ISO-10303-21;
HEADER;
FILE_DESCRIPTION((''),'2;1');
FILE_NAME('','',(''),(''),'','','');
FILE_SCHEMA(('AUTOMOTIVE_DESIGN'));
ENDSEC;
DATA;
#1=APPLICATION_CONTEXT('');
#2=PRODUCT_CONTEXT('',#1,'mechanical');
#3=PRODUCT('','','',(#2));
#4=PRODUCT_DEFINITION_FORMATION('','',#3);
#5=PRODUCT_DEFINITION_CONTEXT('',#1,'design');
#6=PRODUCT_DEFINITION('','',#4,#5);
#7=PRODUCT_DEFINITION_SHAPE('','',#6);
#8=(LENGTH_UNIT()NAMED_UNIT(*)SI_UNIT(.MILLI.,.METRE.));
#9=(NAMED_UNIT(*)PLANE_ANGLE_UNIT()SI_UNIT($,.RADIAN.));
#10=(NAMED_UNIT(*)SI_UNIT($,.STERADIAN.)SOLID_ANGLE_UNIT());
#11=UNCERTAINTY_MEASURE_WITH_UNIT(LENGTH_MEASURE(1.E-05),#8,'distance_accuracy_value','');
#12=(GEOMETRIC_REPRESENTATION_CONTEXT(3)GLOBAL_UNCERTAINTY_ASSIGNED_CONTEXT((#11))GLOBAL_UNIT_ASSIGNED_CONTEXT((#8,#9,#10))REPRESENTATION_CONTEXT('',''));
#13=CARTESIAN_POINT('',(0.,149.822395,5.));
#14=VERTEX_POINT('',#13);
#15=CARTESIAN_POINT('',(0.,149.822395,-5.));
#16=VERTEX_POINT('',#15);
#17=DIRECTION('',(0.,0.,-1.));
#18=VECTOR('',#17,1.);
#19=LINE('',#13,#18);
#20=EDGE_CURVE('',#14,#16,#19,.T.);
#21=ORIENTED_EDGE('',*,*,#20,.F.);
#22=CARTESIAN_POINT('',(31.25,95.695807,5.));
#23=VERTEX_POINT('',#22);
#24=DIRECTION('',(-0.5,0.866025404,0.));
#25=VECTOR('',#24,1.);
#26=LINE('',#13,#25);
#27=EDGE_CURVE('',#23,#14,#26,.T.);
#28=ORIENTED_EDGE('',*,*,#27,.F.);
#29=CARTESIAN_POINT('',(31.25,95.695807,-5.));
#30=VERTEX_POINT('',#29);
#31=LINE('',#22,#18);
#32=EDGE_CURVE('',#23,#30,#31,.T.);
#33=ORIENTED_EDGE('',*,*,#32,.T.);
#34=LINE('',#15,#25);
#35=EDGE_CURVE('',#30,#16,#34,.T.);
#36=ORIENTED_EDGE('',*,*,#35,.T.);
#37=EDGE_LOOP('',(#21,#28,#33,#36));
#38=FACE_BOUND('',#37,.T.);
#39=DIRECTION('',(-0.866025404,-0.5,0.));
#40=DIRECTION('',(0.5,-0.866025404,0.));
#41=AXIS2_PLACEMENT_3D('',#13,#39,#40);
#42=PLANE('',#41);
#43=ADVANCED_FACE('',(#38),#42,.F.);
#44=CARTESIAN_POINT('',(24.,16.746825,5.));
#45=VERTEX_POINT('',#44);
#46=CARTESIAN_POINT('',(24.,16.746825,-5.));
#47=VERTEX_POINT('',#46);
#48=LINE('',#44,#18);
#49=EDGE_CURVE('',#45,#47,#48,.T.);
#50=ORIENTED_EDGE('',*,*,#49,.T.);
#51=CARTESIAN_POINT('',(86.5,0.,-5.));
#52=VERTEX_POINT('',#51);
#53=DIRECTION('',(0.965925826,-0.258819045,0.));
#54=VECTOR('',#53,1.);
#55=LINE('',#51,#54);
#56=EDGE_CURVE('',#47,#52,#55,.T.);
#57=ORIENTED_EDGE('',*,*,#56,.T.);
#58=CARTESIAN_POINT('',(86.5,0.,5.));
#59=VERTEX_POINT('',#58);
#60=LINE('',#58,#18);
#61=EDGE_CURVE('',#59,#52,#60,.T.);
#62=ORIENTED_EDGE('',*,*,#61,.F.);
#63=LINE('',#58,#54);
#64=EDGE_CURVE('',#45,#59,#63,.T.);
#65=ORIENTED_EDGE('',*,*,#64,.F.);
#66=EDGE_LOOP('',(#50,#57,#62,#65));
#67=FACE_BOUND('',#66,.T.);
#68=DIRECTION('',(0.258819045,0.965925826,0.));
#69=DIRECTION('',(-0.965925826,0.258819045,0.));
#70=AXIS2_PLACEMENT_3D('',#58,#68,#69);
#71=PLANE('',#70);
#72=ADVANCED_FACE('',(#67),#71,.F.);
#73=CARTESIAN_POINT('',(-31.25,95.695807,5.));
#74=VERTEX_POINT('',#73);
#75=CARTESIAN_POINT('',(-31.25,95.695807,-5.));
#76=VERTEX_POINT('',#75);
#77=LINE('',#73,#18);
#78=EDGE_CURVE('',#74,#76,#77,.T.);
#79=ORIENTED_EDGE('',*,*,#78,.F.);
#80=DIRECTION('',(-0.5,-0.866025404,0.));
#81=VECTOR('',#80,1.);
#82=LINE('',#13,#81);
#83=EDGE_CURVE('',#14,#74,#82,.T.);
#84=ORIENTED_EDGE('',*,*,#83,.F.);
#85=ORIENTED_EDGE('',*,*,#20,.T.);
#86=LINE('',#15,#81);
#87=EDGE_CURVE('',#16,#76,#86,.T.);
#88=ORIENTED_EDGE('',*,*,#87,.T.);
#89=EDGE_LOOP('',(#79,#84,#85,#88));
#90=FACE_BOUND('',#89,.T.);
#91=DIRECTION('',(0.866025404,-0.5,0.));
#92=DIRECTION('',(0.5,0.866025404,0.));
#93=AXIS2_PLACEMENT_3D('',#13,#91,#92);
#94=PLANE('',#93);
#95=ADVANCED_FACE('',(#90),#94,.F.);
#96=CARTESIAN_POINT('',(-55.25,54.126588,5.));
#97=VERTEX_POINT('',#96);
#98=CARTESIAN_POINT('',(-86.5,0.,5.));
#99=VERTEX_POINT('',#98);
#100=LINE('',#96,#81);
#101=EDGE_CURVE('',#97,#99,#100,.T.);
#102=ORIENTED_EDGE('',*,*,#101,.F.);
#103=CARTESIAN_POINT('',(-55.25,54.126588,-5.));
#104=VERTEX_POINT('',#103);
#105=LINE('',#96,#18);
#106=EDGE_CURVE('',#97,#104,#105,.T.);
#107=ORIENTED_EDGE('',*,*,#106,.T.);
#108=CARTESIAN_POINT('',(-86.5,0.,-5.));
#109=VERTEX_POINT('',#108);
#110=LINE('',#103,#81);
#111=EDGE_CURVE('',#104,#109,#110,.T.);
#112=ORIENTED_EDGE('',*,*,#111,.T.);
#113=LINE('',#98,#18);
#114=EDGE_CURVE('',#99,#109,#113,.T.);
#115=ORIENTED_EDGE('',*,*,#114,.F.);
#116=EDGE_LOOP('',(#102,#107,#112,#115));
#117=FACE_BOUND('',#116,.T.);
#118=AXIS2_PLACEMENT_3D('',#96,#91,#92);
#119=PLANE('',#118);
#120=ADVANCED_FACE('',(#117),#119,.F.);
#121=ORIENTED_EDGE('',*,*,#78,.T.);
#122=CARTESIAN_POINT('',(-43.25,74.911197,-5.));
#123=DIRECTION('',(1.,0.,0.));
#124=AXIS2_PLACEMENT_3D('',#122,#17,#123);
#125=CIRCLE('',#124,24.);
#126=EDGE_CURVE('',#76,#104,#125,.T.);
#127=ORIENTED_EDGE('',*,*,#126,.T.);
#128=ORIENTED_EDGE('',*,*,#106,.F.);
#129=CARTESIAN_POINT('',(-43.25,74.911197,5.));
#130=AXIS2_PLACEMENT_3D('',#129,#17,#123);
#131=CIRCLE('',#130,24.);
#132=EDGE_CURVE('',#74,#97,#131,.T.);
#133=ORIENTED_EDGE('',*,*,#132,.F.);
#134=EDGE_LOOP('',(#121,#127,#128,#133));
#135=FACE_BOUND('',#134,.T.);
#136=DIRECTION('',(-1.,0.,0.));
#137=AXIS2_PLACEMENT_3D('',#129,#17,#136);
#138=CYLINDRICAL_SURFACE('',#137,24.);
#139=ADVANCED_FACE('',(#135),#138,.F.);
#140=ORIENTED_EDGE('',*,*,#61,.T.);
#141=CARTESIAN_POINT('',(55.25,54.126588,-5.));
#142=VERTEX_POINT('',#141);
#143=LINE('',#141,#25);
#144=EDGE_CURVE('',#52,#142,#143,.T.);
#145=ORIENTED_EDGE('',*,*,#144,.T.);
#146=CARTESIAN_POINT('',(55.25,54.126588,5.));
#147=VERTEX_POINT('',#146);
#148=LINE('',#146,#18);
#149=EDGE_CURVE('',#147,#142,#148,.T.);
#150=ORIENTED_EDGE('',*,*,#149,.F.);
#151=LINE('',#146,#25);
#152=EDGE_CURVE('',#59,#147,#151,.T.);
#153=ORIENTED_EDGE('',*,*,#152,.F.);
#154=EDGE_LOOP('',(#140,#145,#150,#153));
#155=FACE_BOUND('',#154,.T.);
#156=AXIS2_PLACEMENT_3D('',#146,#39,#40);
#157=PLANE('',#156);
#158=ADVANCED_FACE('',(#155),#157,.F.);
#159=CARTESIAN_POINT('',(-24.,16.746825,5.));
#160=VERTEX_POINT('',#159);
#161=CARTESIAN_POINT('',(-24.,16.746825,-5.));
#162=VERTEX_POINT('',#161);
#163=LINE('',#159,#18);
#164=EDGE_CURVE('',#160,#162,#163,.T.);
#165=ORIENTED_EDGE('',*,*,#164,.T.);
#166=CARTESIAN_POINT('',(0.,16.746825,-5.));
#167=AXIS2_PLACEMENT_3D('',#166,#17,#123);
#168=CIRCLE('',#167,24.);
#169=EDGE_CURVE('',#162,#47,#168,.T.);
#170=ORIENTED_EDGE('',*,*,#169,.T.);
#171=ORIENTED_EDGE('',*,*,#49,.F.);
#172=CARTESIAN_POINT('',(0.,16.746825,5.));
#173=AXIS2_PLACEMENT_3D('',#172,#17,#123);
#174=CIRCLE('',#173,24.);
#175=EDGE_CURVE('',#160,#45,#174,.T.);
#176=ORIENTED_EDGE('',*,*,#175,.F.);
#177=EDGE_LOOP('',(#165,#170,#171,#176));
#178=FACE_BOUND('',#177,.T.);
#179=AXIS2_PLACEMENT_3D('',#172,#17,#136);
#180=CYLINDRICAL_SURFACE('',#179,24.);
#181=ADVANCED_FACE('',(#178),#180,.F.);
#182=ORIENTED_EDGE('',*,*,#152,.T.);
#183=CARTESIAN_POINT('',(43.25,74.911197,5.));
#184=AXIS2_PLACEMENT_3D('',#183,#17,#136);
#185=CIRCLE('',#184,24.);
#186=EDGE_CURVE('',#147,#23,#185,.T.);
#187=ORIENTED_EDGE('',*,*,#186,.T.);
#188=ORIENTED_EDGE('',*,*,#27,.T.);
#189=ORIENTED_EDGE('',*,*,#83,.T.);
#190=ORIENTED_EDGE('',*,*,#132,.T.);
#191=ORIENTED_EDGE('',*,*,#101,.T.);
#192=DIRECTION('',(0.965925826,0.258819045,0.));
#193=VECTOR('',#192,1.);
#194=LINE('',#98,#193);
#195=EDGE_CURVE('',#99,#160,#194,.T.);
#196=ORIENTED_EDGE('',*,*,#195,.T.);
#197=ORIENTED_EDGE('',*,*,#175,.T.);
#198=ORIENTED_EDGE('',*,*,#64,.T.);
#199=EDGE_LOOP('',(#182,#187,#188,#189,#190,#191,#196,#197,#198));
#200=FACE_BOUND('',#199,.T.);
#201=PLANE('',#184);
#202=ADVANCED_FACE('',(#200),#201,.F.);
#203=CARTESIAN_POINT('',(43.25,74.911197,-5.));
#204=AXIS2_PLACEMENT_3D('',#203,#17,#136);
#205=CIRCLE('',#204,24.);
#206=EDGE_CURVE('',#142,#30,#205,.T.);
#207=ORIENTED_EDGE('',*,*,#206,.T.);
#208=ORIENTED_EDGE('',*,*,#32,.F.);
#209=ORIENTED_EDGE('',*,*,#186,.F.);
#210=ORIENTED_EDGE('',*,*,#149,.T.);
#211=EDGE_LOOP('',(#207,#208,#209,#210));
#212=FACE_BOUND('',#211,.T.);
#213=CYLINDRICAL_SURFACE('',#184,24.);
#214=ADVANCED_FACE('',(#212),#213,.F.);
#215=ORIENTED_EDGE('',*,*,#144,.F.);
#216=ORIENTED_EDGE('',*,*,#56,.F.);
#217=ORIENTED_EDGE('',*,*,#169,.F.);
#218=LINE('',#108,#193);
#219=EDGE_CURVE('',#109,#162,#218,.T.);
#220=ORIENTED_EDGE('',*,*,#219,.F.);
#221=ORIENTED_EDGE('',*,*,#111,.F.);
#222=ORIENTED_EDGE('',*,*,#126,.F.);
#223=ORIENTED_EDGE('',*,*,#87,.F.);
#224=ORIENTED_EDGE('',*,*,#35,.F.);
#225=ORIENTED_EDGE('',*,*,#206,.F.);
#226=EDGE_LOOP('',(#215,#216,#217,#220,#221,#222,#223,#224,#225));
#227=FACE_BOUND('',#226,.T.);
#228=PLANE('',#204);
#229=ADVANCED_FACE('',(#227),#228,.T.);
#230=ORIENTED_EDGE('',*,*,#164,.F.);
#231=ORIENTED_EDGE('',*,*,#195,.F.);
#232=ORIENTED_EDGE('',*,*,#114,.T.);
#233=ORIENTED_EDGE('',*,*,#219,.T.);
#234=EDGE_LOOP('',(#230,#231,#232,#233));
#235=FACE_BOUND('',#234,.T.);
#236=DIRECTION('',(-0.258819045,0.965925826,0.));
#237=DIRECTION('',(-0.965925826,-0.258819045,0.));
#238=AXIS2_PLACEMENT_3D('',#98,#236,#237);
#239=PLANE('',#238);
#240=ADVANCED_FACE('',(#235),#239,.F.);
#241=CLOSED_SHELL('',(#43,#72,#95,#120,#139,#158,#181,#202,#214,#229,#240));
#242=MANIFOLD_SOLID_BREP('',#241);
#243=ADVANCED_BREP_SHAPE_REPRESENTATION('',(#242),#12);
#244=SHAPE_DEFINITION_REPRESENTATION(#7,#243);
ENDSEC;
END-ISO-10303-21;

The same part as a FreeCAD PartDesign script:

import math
import FreeCAD as App
import Part
import Sketcher

V = App.Vector
Q = App.Units.Quantity

doc = App.newDocument("Part")
body = doc.addObject("PartDesign::Body", "Body")

# Sketch on XY plane
sketch1 = doc.addObject("Sketcher::SketchObject", "Sketch")
body.addObject(sketch1)
sketch1.AttachmentSupport = (doc.XY_Plane, [""])
sketch1.MapMode = "FlatFace"
sketch1.addGeometry([
    Part.LineSegment(V(0, 150, 0), V(-31, 96, 0)),  # 0
    Part.ArcOfCircle(Part.Circle(V(-43, 75, 0), V(0, 0, 1), 24), math.radians(-120), math.radians(60)),  # 1
    Part.LineSegment(V(-55, 54, 0), V(-86, 0, 0)),  # 2
    Part.LineSegment(V(-86, 0, 0), V(-24, 17, 0)),  # 3
    Part.ArcOfCircle(Part.Circle(V(0, 17, 0), V(0, 0, 1), 24), math.radians(0), math.radians(180)),  # 4
    Part.LineSegment(V(24, 17, 0), V(86, 0, 0)),  # 5
    Part.LineSegment(V(86, 0, 0), V(55, 54, 0)),  # 6
    Part.ArcOfCircle(Part.Circle(V(43, 75, 0), V(0, 0, 1), 24), math.radians(120), math.radians(300)),  # 7
    Part.LineSegment(V(31, 96, 0), V(0, 150, 0)),  # 8
], False)
sketch1.addConstraint([
    Sketcher.Constraint("Coincident", 0, 2, 1, 2),
    Sketcher.Constraint("Coincident", 1, 1, 2, 1),
    Sketcher.Constraint("Coincident", 2, 2, 3, 1),
    Sketcher.Constraint("Coincident", 3, 2, 4, 2),
    Sketcher.Constraint("Coincident", 4, 1, 5, 1),
    Sketcher.Constraint("Coincident", 5, 2, 6, 1),
    Sketcher.Constraint("Coincident", 6, 2, 7, 2),
    Sketcher.Constraint("Coincident", 7, 1, 8, 1),
    Sketcher.Constraint("Coincident", 8, 2, 0, 1),
    Sketcher.Constraint("Equal", 1, 4),
    Sketcher.Constraint("Equal", 4, 7),
    Sketcher.Constraint("Symmetric", 2, 2, 5, 2, -1, 1),
    Sketcher.Constraint("Symmetric", 1, 3, 7, 3, -2),
    Sketcher.Constraint("Symmetric", 3, 2, 4, 1, -2),
    Sketcher.Constraint("PointOnObject", 2, 2, -1),
    Sketcher.Constraint("PointOnObject", 8, 2, -2),
    Sketcher.Constraint("Parallel", 0, 2),
    Sketcher.Constraint("Parallel", 6, 8),
    Sketcher.Constraint("Horizontal", 4, 3, 3, 2),
    Sketcher.Constraint("Horizontal", 1, 1, 6, 2),
    Sketcher.Constraint("Equal", 0, 2),
    Sketcher.Constraint("Radius", 1, 24.0),
    Sketcher.Constraint("Angle", 0, Q("-120 deg")),
    Sketcher.Constraint("Angle", 3, Q("15 deg")),
    Sketcher.Constraint("DistanceX", 1, 3, 0, 2, 12.0),
    Sketcher.Constraint("DistanceX", 1, 1, 1, 3, 12.0),
    Sketcher.Constraint("Distance", 0, 62.5),
])
pad1 = doc.addObject("PartDesign::Pad", "Pad")
body.addObject(pad1)
pad1.Profile = sketch1
pad1.Length = 10
pad1.Midplane = True

doc.recompute()
